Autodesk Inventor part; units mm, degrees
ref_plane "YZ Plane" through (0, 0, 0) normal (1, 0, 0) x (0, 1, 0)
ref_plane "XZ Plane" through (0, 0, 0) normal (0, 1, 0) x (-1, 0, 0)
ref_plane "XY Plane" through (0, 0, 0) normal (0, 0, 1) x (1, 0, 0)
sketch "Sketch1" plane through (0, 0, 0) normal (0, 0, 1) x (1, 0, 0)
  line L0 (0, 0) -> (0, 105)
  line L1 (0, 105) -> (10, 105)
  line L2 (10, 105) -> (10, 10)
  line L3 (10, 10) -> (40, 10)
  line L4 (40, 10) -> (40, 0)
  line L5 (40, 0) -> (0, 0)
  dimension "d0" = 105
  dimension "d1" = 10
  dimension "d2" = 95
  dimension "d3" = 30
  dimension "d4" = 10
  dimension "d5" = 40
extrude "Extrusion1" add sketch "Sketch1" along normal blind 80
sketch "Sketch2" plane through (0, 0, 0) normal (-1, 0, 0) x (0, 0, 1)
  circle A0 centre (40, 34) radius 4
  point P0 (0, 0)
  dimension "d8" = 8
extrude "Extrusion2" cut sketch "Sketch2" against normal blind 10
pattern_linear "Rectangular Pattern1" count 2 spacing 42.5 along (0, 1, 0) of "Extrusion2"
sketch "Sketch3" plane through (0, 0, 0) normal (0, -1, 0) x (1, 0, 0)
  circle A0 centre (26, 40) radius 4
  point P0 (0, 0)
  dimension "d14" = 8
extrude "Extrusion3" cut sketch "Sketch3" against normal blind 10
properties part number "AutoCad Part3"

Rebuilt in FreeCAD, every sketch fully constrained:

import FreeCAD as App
import Part
import Sketcher

doc = App.newDocument("Part")
body = doc.addObject("PartDesign::Body", "Body")

# Sketch on XY plane
sketch1 = body.newObject("Sketcher::SketchObject", "Sketch")
sketch1.AttachmentSupport = (doc.getObject("XY_Plane"), [""])
sketch1.MapMode = "FlatFace"
sketch1.addGeometry(Part.LineSegment(App.Vector(0, 105, 0), App.Vector(0, 0, 0)), False)
sketch1.addGeometry(Part.LineSegment(App.Vector(0, 0, 0), App.Vector(40, 0, 0)), False)
sketch1.addGeometry(Part.LineSegment(App.Vector(40, 0, 0), App.Vector(40, 10, 0)), False)
sketch1.addGeometry(Part.LineSegment(App.Vector(40, 10, 0), App.Vector(10, 10, 0)), False)
sketch1.addGeometry(Part.LineSegment(App.Vector(10, 10, 0), App.Vector(10, 105, 0)), False)
sketch1.addGeometry(Part.LineSegment(App.Vector(10, 105, 0), App.Vector(0, 105, 0)), False)
sketch1.addConstraint(Sketcher.Constraint("Coincident", 0, 2, 1, 1))
sketch1.addConstraint(Sketcher.Constraint("Coincident", 1, 2, 2, 1))
sketch1.addConstraint(Sketcher.Constraint("Coincident", 2, 2, 3, 1))
sketch1.addConstraint(Sketcher.Constraint("Coincident", 3, 2, 4, 1))
sketch1.addConstraint(Sketcher.Constraint("Coincident", 4, 2, 5, 1))
sketch1.addConstraint(Sketcher.Constraint("Coincident", 5, 2, 0, 1))
sketch1.addConstraint(Sketcher.Constraint("Vertical", 0))
sketch1.addConstraint(Sketcher.Constraint("Horizontal", 1))
sketch1.addConstraint(Sketcher.Constraint("Vertical", 2))
sketch1.addConstraint(Sketcher.Constraint("Horizontal", 3))
sketch1.addConstraint(Sketcher.Constraint("Vertical", 4))
sketch1.addConstraint(Sketcher.Constraint("Horizontal", 5))
sketch1.addConstraint(Sketcher.Constraint("Coincident", 0, 2, -1, 1))
sketch1.addConstraint(Sketcher.Constraint("Equal", 5, 2))
sketch1.addConstraint(Sketcher.Constraint("DistanceX", 1, 1, 1, 2, 40.0))
sketch1.addConstraint(Sketcher.Constraint("DistanceX", 3, 2, 3, 1, 30.0))
sketch1.addConstraint(Sketcher.Constraint("DistanceY", 0, 2, 0, 1, 105.0))
pad1 = body.newObject("PartDesign::Pad", "Pad")
pad1.Profile = sketch1
pad1.Length = 80

# Sketch on YZ plane
sketch2 = body.newObject("Sketcher::SketchObject", "Sketch001")
sketch2.AttachmentSupport = (doc.getObject("YZ_Plane"), [""])
sketch2.MapMode = "FlatFace"
sketch2.addGeometry(Part.Circle(App.Vector(34, 40, 0), App.Vector(0, 0, 1), 4), False)
sketch2.addConstraint(Sketcher.Constraint("Diameter", 0, 8.0))
sketch2.addConstraint(Sketcher.Constraint("DistanceX", -1, 1, 0, 3, 34.0))
sketch2.addConstraint(Sketcher.Constraint("DistanceY", -1, 1, 0, 3, 40.0))
pocket1 = body.newObject("PartDesign::Pocket", "Pocket")
pocket1.Profile = sketch2
pocket1.Length = 10
pocket1.Reversed = True
doc.recompute()

linearpattern = body.newObject("PartDesign::LinearPattern", "LinearPattern")
linearpattern.Originals = [pocket1]
linearpattern.Direction = (doc.getObject("Y_Axis"), [""])
linearpattern.Mode = "offset"
linearpattern.Offset = 42.5
linearpattern.Occurrences = 2
body.Tip = linearpattern

# Sketch on XZ plane
sketch3 = body.newObject("Sketcher::SketchObject", "Sketch002")
sketch3.AttachmentSupport = (doc.getObject("XZ_Plane"), [""])
sketch3.MapMode = "FlatFace"
sketch3.addGeometry(Part.Circle(App.Vector(26, 40, 0), App.Vector(0, 0, 1), 4), False)
sketch3.addConstraint(Sketcher.Constraint("Diameter", 0, 8.0))
sketch3.addConstraint(Sketcher.Constraint("DistanceX", -1, 1, 0, 3, 26.0))
sketch3.addConstraint(Sketcher.Constraint("DistanceY", -1, 1, 0, 3, 40.0))
pocket2 = body.newObject("PartDesign::Pocket", "Pocket001")
pocket2.Profile = sketch3
pocket2.Length = 10

doc.recompute()
